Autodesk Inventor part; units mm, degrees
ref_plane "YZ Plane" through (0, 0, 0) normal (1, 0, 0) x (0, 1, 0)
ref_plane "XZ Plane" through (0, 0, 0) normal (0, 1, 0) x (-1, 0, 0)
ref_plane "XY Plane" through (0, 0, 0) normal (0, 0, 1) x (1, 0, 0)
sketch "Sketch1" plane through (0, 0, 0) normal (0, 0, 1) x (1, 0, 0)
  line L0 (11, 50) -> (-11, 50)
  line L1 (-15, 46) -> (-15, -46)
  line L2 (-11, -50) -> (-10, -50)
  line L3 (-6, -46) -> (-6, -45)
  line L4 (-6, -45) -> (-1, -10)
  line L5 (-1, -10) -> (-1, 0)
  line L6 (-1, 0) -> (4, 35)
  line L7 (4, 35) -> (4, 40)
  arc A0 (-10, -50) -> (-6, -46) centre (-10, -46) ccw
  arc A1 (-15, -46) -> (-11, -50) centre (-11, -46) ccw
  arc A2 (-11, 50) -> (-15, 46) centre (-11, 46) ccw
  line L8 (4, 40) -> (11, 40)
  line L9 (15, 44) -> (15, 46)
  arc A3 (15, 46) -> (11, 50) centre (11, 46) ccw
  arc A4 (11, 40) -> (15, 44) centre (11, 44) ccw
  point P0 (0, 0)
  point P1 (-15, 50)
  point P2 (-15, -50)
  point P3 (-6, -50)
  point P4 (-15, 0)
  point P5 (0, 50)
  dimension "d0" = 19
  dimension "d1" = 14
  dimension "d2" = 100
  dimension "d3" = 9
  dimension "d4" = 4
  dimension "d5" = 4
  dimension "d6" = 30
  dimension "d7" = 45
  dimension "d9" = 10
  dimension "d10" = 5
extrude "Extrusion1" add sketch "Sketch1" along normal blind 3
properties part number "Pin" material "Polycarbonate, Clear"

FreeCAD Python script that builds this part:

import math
import FreeCAD as App
import Part
import Sketcher
from FreeCAD import Vector
Q = App.Units.Quantity

doc = App.newDocument("Part")
body = doc.addObject("PartDesign::Body", "Body")

# Sketch on XY plane
sketch1 = doc.addObject("Sketcher::SketchObject", "Sketch")
body.addObject(sketch1)
sketch1.AttachmentSupport = (doc.XY_Plane, [""])
sketch1.MapMode = "FlatFace"
sketch1.addGeometry([
    Part.ArcOfCircle(Part.Circle(Vector(11, 46, 0), Vector(0, 0, 1), 4), math.radians(0), math.radians(90)),  # 0
    Part.LineSegment(Vector(11, 50, 0), Vector(-11, 50, 0)),  # 1
    Part.ArcOfCircle(Part.Circle(Vector(-11, 46, 0), Vector(0, 0, 1), 4), math.radians(90), math.radians(180)),  # 2
    Part.LineSegment(Vector(-15, 46, 0), Vector(-15, -46, 0)),  # 3
    Part.ArcOfCircle(Part.Circle(Vector(-11, -46, 0), Vector(0, 0, 1), 4), math.radians(180), math.radians(270)),  # 4
    Part.LineSegment(Vector(-11, -50, 0), Vector(-10, -50, 0)),  # 5
    Part.ArcOfCircle(Part.Circle(Vector(-10, -46, 0), Vector(0, 0, 1), 4), math.radians(-90), math.radians(0)),  # 6
    Part.LineSegment(Vector(-6, -46, 0), Vector(-6, -45, 0)),  # 7
    Part.LineSegment(Vector(-6, -45, 0), Vector(-1, -10, 0)),  # 8
    Part.LineSegment(Vector(-1, -10, 0), Vector(-1, 0, 0)),  # 9
    Part.LineSegment(Vector(-1, 0, 0), Vector(4, 35, 0)),  # 10
    Part.LineSegment(Vector(4, 35, 0), Vector(4, 40, 0)),  # 11
    Part.LineSegment(Vector(4, 40, 0), Vector(11, 40, 0)),  # 12
    Part.ArcOfCircle(Part.Circle(Vector(11, 44, 0), Vector(0, 0, 1), 4), math.radians(-90), math.radians(0)),  # 13
    Part.LineSegment(Vector(15, 44, 0), Vector(15, 46, 0)),  # 14
], False)
sketch1.addConstraint([
    Sketcher.Constraint("Tangent", 0, 2, 1, 1),
    Sketcher.Constraint("Tangent", 1, 2, 2, 1),
    Sketcher.Constraint("Tangent", 2, 2, 3, 1),
    Sketcher.Constraint("Tangent", 3, 2, 4, 1),
    Sketcher.Constraint("Tangent", 4, 2, 5, 1),
    Sketcher.Constraint("Tangent", 5, 2, 6, 1),
    Sketcher.Constraint("Tangent", 6, 2, 7, 1),
    Sketcher.Constraint("Coincident", 7, 2, 8, 1),
    Sketcher.Constraint("Coincident", 8, 2, 9, 1),
    Sketcher.Constraint("Coincident", 9, 2, 10, 1),
    Sketcher.Constraint("Coincident", 10, 2, 11, 1),
    Sketcher.Constraint("Coincident", 11, 2, 12, 1),
    Sketcher.Constraint("Tangent", 12, 2, 13, 1),
    Sketcher.Constraint("Tangent", 13, 2, 14, 1),
    Sketcher.Constraint("Tangent", 14, 2, 0, 1),
    Sketcher.Constraint("Horizontal", 1),
    Sketcher.Constraint("Vertical", 3),
    Sketcher.Constraint("Horizontal", 5),
    Sketcher.Constraint("Vertical", 7),
    Sketcher.Constraint("Vertical", 9),
    Sketcher.Constraint("Vertical", 11),
    Sketcher.Constraint("Horizontal", 12),
    Sketcher.Constraint("Vertical", 14),
    Sketcher.Constraint("Equal", 0, 2),
    Sketcher.Constraint("Equal", 2, 4),
    Sketcher.Constraint("Equal", 4, 6),
    Sketcher.Constraint("Equal", 6, 13),
    Sketcher.Constraint("Symmetric", 0, 3, 4, 3, -1, 1),
    Sketcher.Constraint("PointOnObject", 9, 2, -1),
    Sketcher.Constraint("Parallel", 8, 10),
    Sketcher.Constraint("Equal", 5, 7),
    Sketcher.Constraint("Equal", 8, 10),
    Sketcher.Constraint("Radius", 0, Q("4 mm")),
    Sketcher.Constraint("DistanceY", 9, 1, 9, 2, Q("10 mm")),
    Sketcher.Constraint("DistanceY", 11, 1, 11, 2, Q("5 mm")),
    Sketcher.Constraint("DistanceX", 6, 3, -1, 1, Q("10 mm")),
    Sketcher.Constraint("DistanceY", 7, 2, -1, 1, Q("45 mm")),
    Sketcher.Constraint("DistanceX", -1, 1, 10, 2, Q("4 mm")),
    Sketcher.Constraint("DistanceX", 3, 2, 6, 3, Q("5 mm")),
])
pad1 = doc.addObject("PartDesign::Pad", "Pad")
body.addObject(pad1)
pad1.Profile = sketch1
pad1.Length = 3

doc.recompute()
